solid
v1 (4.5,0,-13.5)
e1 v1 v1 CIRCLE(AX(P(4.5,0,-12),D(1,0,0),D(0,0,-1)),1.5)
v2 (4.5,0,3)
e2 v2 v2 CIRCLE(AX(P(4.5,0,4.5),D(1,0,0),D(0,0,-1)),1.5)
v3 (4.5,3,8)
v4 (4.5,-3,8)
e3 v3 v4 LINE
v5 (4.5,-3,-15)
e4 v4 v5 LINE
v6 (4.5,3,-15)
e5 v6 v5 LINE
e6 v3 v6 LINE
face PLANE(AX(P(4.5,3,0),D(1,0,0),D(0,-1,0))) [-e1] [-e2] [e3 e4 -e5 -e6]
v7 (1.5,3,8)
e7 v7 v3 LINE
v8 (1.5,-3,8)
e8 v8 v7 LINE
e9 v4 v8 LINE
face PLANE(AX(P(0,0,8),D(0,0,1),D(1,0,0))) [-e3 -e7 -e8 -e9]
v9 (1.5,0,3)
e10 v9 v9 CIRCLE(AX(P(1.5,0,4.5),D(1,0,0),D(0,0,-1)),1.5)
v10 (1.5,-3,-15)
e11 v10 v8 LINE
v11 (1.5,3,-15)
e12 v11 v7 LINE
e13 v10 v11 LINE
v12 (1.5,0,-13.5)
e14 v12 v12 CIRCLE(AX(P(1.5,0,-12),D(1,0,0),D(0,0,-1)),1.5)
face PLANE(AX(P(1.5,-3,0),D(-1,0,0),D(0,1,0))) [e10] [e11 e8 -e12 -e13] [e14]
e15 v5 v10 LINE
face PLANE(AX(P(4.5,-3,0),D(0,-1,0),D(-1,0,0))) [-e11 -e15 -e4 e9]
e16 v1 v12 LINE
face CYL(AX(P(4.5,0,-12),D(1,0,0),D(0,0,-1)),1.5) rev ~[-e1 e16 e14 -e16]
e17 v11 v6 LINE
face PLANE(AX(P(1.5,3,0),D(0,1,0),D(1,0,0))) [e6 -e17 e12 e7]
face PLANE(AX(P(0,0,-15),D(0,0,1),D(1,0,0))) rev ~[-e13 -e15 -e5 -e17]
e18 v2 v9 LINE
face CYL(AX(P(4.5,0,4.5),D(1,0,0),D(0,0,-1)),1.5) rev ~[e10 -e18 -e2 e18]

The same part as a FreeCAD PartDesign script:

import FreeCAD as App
import Part
import Sketcher
from FreeCAD import Vector
Q = App.Units.Quantity

doc = App.newDocument("Part")
body = doc.addObject("PartDesign::Body", "Body")

# Sketch on XY plane
sketch1 = body.newObject("Sketcher::SketchObject", "Sketch")
sketch1.AttachmentSupport = (doc.getObject("XY_Plane"), [""])
sketch1.MapMode = "FlatFace"
sketch1.addGeometry(Part.LineSegment(Vector(4.5, 3, 0), Vector(1.5, 3, 0)), False)
sketch1.addGeometry(Part.LineSegment(Vector(1.5, 3, 0), Vector(1.5, -3, 0)), False)
sketch1.addGeometry(Part.LineSegment(Vector(1.5, -3, 0), Vector(4.5, -3, 0)), False)
sketch1.addGeometry(Part.LineSegment(Vector(4.5, -3, 0), Vector(4.5, 3, 0)), False)
sketch1.addConstraint(Sketcher.Constraint("Coincident", 0, 2, 1, 1))
sketch1.addConstraint(Sketcher.Constraint("Coincident", 1, 2, 2, 1))
sketch1.addConstraint(Sketcher.Constraint("Coincident", 2, 2, 3, 1))
sketch1.addConstraint(Sketcher.Constraint("Coincident", 3, 2, 0, 1))
sketch1.addConstraint(Sketcher.Constraint("Horizontal", 0))
sketch1.addConstraint(Sketcher.Constraint("Vertical", 1))
sketch1.addConstraint(Sketcher.Constraint("Horizontal", 2))
sketch1.addConstraint(Sketcher.Constraint("Vertical", 3))
sketch1.addConstraint(Sketcher.Constraint("DistanceX", 0, 2, 0, 1, Q("3 mm")))
sketch1.addConstraint(Sketcher.Constraint("DistanceY", 1, 2, 1, 1, Q("6 mm")))
sketch1.addConstraint(Sketcher.Constraint("DistanceY", -1, 1, 0, 2, Q("3 mm")))
sketch1.addConstraint(Sketcher.Constraint("DistanceX", -1, 1, 0, 2, Q("1.5 mm")))
pad1 = body.newObject("PartDesign::Pad", "Pad")
pad1.Profile = sketch1
pad1.Type = "TwoLengths"
pad1.Length = 8
pad1.Length2 = 15

# Sketch on YZ plane
sketch2 = body.newObject("Sketcher::SketchObject", "Sketch001")
sketch2.AttachmentSupport = (doc.getObject("YZ_Plane"), [""])
sketch2.MapMode = "FlatFace"
sketch2.AttachmentOffset = App.Placement(Vector(0, 0, 4.5), App.Rotation())
sketch2.addGeometry(Part.Circle(Vector(0, 4.5, 0), Vector(0, 0, 1), 1.5), False)
sketch2.addGeometry(Part.Circle(Vector(0, -12, 0), Vector(0, 0, 1), 1.5), False)
sketch2.addConstraint(Sketcher.Constraint("Equal", 0, 1))
sketch2.addConstraint(Sketcher.Constraint("PointOnObject", 0, 3, -2))
sketch2.addConstraint(Sketcher.Constraint("PointOnObject", 1, 3, -2))
sketch2.addConstraint(Sketcher.Constraint("Diameter", 0, Q("3 mm")))
sketch2.addConstraint(Sketcher.Constraint("DistanceY", 1, 3, -1, 1, Q("12 mm")))
sketch2.addConstraint(Sketcher.Constraint("DistanceY", -1, 1, 0, 3, Q("4.5 mm")))
pocket1 = body.newObject("PartDesign::Pocket", "Pocket")
pocket1.Profile = sketch2
pocket1.Length = 8

doc.recompute()
